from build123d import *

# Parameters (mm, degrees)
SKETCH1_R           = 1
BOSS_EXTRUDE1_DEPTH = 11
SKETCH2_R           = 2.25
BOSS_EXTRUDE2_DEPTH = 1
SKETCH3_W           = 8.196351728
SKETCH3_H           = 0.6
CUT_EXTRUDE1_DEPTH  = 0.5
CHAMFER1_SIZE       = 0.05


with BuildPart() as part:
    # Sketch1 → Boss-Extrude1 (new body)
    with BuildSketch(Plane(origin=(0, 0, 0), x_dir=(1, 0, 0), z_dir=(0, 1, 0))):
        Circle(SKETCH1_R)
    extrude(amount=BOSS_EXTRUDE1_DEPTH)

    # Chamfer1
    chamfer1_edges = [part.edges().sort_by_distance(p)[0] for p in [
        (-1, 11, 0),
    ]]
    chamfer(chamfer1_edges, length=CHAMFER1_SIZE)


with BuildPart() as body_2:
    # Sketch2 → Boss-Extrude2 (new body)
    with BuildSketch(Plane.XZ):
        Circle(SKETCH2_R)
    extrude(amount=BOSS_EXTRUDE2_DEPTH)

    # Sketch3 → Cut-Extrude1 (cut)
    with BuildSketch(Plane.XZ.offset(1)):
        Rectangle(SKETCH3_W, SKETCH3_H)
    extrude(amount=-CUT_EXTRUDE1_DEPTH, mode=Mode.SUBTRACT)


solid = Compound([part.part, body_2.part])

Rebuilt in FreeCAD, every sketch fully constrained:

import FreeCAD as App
import Part
import Sketcher

V = App.Vector
Q = App.Units.Quantity


def edges_at(feature, points):
    """Names of the edges that pass closest to the given points."""
    edges = feature.Shape.Edges
    near = lambda p: min(range(len(edges)), key=lambda i: edges[i].distToShape(Part.Vertex(*p))[0])
    return sorted({f"Edge{near(p) + 1}" for p in points})

doc = App.newDocument("Part")
body = doc.addObject("PartDesign::Body", "Body")

sketch1 = doc.addObject("Sketcher::SketchObject", "Sketch")
body.addObject(sketch1)
sketch1.AttachmentSupport = (doc.XZ_Plane, [""])
sketch1.MapMode = "FlatFace"
sketch1.addGeometry(Part.Circle(V(0, 0, 0), V(0, 0, 1), 1), False)
sketch1.addConstraint([
    Sketcher.Constraint("Coincident", 0, 3, -1, 1),
    Sketcher.Constraint("Diameter", 0, Q("2 mm")),
])
pad1 = doc.addObject("PartDesign::Pad", "Pad")
body.addObject(pad1)
pad1.Profile = sketch1
pad1.Length = 11
pad1.Reversed = True
doc.recompute()

chamfer = doc.addObject("PartDesign::Chamfer", "Chamfer")
body.addObject(chamfer)
chamfer.Base = (pad1, edges_at(pad1, [(-1, 11, 0)]))
chamfer.Size = 0.05
body2 = doc.addObject("PartDesign::Body", "Body001")

sketch2 = doc.addObject("Sketcher::SketchObject", "Sketch001")
body2.addObject(sketch2)
sketch2.AttachmentSupport = (doc.getObject("XZ_Plane001"), [""])
sketch2.MapMode = "FlatFace"
sketch2.addGeometry(Part.Circle(V(0, 0, 0), V(0, 0, 1), 2.25), False)
sketch2.addConstraint([
    Sketcher.Constraint("Coincident", 0, 3, -1, 1),
    Sketcher.Constraint("Diameter", 0, Q("4.5 mm")),
])
pad2 = doc.addObject("PartDesign::Pad", "Pad001")
body2.addObject(pad2)
pad2.Profile = sketch2
pad2.Length = 1

sketch3 = doc.addObject("Sketcher::SketchObject", "Sketch002")
body2.addObject(sketch3)
sketch3.AttachmentSupport = (doc.getObject("XZ_Plane001"), [""])
sketch3.MapMode = "FlatFace"
sketch3.AttachmentOffset = App.Placement(V(0, 0, 1), App.Rotation())
sketch3.addGeometry([
    Part.LineSegment(V(-4.098176, 0.3, 0), V(-4.098176, -0.3, 0)),
    Part.LineSegment(V(-4.098176, -0.3, 0), V(4.098176, -0.3, 0)),
    Part.LineSegment(V(4.098176, -0.3, 0), V(4.098176, 0.3, 0)),
    Part.LineSegment(V(4.098176, 0.3, 0), V(-4.098176, 0.3, 0)),
], False)
sketch3.addConstraint([
    Sketcher.Constraint("Coincident", 0, 2, 1, 1),
    Sketcher.Constraint("Coincident", 1, 2, 2, 1),
    Sketcher.Constraint("Coincident", 2, 2, 3, 1),
    Sketcher.Constraint("Coincident", 3, 2, 0, 1),
    Sketcher.Constraint("Vertical", 0),
    Sketcher.Constraint("Horizontal", 1),
    Sketcher.Constraint("Vertical", 2),
    Sketcher.Constraint("Horizontal", 3),
    Sketcher.Constraint("Symmetric", 0, 2, 2, 2, -1, 1),
    Sketcher.Constraint("DistanceY", 0, 2, 0, 1, Q("0.6 mm")),
    Sketcher.Constraint("DistanceX", 1, 1, 1, 2, Q("8.196352 mm")),
])
pocket1 = doc.addObject("PartDesign::Pocket", "Pocket")
body2.addObject(pocket1)
pocket1.Profile = sketch3
pocket1.Length = 0.5

doc.recompute()
